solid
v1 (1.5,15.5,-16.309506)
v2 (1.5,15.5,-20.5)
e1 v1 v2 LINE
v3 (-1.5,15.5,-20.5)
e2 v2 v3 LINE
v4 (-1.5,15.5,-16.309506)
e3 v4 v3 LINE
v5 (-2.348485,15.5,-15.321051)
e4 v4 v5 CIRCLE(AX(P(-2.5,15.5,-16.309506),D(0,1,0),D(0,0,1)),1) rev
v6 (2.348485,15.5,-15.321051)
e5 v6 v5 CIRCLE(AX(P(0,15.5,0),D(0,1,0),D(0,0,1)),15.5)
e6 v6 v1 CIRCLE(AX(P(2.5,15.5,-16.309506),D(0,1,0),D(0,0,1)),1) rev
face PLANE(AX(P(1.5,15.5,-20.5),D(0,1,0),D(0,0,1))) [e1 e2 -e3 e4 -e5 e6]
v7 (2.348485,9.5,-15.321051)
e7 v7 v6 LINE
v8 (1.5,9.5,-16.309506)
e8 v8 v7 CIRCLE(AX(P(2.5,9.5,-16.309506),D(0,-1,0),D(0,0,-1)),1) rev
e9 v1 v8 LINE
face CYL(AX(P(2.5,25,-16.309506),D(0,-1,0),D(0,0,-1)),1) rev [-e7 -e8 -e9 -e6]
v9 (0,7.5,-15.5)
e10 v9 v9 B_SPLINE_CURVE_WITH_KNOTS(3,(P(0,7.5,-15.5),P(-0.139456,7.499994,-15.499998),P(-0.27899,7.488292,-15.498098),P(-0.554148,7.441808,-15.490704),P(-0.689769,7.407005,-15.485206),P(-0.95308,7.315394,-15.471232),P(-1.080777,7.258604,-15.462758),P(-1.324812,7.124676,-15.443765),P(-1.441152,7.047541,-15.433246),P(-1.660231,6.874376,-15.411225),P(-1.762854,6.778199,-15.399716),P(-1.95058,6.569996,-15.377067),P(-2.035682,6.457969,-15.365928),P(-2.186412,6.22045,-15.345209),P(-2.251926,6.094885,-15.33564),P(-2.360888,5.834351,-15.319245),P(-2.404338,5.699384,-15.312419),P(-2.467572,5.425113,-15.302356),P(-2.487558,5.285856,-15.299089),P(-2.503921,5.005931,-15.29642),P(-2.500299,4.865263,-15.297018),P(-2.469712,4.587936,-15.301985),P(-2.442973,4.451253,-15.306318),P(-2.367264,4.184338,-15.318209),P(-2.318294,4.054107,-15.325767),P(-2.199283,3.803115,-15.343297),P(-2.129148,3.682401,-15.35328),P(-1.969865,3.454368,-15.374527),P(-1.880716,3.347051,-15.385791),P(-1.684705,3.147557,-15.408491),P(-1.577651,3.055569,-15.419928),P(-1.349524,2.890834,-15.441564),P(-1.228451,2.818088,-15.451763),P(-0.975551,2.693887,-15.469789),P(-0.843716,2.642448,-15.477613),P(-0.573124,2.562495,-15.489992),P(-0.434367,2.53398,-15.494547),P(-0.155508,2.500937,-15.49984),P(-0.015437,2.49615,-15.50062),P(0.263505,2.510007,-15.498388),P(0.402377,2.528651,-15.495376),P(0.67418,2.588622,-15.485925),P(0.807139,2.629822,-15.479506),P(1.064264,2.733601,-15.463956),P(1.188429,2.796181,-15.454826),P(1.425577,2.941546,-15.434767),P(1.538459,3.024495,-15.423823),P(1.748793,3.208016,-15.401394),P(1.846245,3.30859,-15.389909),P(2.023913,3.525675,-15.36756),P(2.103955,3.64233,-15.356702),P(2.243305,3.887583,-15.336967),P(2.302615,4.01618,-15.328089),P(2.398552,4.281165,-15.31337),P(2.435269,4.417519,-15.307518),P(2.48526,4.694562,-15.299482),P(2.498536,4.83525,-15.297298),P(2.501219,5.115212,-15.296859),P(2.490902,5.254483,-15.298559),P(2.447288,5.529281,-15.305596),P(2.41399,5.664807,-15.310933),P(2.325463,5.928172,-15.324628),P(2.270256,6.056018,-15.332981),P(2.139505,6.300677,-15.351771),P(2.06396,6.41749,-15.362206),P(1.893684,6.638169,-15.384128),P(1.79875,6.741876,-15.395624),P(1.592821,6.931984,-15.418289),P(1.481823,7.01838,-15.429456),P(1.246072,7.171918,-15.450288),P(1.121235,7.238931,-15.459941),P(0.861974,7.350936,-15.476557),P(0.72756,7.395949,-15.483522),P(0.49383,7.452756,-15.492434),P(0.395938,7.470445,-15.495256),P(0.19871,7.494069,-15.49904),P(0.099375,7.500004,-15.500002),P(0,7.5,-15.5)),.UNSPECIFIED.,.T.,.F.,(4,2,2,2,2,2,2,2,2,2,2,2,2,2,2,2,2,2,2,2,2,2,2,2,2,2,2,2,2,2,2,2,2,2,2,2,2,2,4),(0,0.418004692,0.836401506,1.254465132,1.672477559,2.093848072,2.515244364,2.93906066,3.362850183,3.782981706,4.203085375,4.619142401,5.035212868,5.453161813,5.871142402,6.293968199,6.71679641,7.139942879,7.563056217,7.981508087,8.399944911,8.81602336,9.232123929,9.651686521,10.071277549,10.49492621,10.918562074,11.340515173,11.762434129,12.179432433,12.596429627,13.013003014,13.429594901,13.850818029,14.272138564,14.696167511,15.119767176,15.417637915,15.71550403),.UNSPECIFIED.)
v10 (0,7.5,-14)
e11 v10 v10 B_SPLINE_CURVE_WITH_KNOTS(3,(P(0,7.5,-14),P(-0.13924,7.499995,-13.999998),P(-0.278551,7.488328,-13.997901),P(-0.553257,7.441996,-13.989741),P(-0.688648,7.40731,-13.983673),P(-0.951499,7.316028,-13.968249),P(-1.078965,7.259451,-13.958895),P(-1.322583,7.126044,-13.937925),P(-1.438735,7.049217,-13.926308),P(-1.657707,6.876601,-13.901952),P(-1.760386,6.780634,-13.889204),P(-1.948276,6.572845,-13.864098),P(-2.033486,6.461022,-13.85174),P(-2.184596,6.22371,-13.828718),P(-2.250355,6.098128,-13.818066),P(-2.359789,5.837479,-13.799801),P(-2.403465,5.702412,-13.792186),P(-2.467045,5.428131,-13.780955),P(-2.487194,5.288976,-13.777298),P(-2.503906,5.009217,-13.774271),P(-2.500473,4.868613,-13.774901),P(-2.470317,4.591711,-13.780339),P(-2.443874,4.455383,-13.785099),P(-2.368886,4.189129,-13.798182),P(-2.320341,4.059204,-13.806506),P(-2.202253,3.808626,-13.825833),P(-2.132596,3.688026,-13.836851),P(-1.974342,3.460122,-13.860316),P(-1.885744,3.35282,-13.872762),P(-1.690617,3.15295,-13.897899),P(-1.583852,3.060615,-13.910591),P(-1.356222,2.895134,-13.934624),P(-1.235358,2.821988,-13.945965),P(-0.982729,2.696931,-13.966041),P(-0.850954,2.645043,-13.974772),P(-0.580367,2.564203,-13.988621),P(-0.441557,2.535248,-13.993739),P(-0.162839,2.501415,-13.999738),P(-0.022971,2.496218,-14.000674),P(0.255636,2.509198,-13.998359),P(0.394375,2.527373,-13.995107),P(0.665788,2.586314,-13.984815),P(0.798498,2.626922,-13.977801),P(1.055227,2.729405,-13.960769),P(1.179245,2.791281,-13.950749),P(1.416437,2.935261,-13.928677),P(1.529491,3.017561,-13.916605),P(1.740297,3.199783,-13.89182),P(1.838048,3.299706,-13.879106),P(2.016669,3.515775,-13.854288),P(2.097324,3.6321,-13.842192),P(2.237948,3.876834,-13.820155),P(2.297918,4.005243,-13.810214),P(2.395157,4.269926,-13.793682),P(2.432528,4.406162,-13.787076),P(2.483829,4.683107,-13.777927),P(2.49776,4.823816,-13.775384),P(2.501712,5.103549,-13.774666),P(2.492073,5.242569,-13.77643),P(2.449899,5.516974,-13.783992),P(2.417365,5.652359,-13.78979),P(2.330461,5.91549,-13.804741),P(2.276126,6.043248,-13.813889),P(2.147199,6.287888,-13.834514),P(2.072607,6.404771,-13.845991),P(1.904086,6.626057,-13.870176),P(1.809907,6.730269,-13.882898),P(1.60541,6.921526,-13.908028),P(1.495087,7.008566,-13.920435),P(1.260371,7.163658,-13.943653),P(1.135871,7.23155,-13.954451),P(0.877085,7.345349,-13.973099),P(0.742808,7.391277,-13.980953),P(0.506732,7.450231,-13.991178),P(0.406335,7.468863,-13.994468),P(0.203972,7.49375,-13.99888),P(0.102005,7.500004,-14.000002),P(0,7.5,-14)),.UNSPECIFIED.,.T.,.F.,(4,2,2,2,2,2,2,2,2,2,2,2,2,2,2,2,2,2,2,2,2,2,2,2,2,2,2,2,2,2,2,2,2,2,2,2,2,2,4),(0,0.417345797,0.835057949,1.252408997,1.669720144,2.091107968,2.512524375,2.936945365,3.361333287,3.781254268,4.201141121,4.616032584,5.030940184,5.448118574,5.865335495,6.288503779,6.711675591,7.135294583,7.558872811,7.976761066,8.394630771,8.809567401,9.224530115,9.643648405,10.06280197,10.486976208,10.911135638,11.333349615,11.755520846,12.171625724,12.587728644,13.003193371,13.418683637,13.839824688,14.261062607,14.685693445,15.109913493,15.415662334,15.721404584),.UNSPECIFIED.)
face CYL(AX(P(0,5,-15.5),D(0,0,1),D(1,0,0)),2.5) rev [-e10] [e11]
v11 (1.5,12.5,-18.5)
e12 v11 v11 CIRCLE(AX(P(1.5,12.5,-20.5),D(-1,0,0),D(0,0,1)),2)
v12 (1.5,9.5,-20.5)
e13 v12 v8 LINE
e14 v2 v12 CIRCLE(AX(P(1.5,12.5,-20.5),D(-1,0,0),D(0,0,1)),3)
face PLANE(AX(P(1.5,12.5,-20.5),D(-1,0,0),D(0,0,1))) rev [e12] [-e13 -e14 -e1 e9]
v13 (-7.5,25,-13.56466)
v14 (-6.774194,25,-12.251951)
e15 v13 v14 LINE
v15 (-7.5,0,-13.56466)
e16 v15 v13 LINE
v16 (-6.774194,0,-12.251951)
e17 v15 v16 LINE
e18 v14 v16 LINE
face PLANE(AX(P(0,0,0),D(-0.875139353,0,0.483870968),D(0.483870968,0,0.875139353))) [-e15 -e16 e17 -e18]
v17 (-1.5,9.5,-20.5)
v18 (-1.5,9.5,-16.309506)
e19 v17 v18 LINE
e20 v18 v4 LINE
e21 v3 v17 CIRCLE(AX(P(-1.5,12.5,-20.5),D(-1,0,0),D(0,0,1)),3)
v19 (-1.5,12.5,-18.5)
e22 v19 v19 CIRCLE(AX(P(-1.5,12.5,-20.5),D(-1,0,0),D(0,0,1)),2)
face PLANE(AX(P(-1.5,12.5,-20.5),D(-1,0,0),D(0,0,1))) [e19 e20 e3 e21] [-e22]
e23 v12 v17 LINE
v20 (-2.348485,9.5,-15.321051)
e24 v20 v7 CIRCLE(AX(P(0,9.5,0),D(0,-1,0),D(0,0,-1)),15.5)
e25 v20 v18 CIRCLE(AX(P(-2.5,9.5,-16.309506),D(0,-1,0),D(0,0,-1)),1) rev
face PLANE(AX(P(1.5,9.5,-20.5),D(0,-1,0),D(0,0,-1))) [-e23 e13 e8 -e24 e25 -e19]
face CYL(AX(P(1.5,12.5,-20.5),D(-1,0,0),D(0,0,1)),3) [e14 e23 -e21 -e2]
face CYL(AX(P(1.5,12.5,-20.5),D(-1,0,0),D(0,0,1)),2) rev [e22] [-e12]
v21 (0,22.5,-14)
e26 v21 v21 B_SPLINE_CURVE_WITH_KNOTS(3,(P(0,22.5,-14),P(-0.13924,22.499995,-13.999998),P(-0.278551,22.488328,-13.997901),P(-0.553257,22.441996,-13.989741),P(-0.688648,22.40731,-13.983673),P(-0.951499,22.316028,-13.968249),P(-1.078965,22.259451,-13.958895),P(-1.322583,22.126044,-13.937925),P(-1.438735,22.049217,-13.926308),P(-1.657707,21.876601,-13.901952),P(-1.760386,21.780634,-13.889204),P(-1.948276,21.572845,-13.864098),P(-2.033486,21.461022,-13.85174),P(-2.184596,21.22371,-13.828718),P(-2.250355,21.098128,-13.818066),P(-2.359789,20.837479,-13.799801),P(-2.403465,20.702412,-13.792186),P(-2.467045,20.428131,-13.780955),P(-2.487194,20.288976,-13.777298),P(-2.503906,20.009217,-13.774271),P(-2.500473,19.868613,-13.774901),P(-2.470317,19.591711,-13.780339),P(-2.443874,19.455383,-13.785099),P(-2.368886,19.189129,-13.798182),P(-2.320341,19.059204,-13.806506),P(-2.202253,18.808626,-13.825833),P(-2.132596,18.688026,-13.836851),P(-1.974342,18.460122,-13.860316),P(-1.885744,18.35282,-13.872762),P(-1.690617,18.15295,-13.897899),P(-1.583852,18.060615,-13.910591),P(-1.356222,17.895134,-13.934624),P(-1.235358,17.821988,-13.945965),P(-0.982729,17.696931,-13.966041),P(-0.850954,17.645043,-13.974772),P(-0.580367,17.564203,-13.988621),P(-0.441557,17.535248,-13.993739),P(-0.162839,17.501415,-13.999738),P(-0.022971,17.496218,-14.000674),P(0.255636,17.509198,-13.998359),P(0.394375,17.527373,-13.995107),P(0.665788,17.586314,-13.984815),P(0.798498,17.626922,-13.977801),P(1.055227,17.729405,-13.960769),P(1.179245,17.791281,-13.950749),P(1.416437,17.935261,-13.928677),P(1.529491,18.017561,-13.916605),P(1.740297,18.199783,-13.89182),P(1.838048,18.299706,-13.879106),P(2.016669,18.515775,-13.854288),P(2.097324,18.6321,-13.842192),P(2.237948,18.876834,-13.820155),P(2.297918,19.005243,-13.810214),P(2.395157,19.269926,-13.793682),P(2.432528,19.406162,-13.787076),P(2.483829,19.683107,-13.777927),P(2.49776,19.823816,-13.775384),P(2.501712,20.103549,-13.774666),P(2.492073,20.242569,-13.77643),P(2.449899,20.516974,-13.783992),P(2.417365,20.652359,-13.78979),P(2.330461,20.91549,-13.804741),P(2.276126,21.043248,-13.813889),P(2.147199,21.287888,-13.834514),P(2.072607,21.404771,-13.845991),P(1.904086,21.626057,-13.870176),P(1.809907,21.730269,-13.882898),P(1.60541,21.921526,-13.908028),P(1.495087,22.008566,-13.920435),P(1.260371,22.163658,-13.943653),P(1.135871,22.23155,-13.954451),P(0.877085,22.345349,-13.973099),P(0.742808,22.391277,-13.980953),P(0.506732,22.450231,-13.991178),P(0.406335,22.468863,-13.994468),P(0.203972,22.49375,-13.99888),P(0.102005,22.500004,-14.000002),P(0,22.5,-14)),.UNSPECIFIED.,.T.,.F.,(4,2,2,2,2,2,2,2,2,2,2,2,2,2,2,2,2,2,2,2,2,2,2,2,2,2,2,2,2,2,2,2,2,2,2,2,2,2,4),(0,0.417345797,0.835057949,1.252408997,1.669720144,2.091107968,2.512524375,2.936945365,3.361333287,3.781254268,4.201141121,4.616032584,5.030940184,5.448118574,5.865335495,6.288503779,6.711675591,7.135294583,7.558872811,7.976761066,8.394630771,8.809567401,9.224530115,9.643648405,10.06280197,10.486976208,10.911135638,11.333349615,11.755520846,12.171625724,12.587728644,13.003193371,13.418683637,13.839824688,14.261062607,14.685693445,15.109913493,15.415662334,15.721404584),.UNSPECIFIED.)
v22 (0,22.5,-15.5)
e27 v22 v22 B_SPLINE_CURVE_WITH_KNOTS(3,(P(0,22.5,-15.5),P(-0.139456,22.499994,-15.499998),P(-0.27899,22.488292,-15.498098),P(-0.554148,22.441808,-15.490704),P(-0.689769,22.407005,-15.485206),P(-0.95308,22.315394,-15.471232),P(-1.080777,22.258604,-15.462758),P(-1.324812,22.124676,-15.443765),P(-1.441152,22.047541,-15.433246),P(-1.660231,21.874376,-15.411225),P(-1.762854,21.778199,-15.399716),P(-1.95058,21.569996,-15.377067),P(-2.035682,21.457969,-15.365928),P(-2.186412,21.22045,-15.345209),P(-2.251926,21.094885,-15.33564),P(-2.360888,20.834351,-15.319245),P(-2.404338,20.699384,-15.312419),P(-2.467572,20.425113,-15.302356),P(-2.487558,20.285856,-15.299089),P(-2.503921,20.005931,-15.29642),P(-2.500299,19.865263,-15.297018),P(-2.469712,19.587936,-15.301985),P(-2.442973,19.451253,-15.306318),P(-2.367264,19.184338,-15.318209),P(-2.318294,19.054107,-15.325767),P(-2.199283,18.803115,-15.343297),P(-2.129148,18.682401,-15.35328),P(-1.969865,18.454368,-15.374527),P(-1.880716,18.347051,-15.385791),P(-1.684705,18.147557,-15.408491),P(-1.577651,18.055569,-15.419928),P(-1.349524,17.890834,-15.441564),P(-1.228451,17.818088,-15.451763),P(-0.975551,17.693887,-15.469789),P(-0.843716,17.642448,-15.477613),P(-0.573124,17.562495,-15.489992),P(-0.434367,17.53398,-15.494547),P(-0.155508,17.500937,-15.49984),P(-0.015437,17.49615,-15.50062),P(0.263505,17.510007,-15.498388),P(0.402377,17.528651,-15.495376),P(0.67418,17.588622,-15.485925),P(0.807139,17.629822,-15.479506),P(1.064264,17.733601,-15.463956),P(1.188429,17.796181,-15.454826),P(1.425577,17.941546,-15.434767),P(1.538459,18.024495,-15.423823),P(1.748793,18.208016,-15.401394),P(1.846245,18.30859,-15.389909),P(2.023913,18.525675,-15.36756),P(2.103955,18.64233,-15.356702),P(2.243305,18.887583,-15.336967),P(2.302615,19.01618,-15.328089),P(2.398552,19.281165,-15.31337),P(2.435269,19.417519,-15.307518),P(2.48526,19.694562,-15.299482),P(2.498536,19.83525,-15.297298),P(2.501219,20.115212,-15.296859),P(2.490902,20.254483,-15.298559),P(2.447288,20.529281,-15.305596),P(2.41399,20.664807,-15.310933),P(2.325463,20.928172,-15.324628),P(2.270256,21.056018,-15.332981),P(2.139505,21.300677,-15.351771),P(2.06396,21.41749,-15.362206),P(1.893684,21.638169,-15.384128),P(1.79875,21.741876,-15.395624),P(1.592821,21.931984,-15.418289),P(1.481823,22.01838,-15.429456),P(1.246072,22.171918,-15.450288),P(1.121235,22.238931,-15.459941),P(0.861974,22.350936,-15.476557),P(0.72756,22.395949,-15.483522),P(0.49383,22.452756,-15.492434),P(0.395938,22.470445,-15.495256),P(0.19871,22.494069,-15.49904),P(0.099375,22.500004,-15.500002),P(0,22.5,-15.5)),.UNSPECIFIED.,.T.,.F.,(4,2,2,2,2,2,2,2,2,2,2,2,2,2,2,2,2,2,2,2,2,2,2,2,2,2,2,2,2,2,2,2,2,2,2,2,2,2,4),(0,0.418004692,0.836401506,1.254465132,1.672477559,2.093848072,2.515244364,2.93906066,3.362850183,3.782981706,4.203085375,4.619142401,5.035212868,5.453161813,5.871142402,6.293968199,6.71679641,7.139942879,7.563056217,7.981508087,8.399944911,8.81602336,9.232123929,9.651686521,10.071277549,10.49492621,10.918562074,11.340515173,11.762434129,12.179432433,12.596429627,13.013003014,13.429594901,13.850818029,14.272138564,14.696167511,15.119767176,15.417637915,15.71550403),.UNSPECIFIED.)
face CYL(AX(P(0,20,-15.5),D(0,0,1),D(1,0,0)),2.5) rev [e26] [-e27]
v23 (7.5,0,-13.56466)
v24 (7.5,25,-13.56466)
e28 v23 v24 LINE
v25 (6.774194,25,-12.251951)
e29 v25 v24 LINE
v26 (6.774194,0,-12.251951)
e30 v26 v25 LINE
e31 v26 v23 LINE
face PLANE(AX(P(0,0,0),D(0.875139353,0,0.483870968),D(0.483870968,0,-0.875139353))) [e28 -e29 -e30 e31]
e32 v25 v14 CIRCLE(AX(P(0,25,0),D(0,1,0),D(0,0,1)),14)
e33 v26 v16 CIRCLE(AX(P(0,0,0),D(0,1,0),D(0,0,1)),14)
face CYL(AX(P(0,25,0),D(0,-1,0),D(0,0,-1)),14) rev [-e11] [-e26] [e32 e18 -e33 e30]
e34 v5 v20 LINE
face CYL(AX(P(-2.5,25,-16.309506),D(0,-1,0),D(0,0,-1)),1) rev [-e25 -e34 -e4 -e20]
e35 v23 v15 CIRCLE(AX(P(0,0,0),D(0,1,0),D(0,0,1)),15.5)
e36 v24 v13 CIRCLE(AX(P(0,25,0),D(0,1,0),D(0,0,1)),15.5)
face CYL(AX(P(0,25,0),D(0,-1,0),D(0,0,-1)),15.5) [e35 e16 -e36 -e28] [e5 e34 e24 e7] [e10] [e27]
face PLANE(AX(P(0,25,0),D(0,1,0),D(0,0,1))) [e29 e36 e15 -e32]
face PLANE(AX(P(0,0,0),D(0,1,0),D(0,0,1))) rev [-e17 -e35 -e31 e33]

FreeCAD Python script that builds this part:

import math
import FreeCAD as App
import Part
import Sketcher
from FreeCAD import Vector
Q = App.Units.Quantity


def edges_at(feature, points):
    """Names of the edges that pass closest to the given points."""
    edges = feature.Shape.Edges
    near = lambda p: min(range(len(edges)), key=lambda i: edges[i].distToShape(Part.Vertex(*p))[0])
    return sorted({f"Edge{near(p) + 1}" for p in points})


def add_polygon(sketch, points):
    """Adds a closed chain of lines whose ends are joined by coincident constraints."""
    first, n = sketch.GeometryCount, len(points)
    for a, b in zip(points, points[1:] + points[:1]):
        sketch.addGeometry(Part.LineSegment(App.Vector(*a, 0), App.Vector(*b, 0)), False)
    for i in range(n):
        sketch.addConstraint(Sketcher.Constraint("Coincident", first + i, 2, first + (i + 1) % n, 1))

doc = App.newDocument("Part")
body = doc.addObject("PartDesign::Body", "Body")

# Sketch on XZ plane
sketch1 = body.newObject("Sketcher::SketchObject", "Sketch")
sketch1.AttachmentSupport = (doc.getObject("XZ_Plane"), [""])
sketch1.MapMode = "FlatFace"
sketch1.addGeometry([
    Part.Circle(Vector(0, 0, 0), Vector(0, 0, 1), 16),
    Part.Circle(Vector(0, 0, 0), Vector(0, 0, 1), 14),
], False)
sketch1.addConstraint([
    Sketcher.Constraint("Coincident", 0, 3, -1, 1),
    Sketcher.Constraint("Coincident", 1, 3, -1, 1),
    Sketcher.Constraint("Diameter", 0, Q("31 mm")),
    Sketcher.Constraint("Diameter", 1, Q("28 mm")),
])
pad1 = body.newObject("PartDesign::Pad", "Pad")
pad1.Profile = sketch1
pad1.Length = 25
pad1.Reversed = True

# Sketch on XZ plane
sketch2 = body.newObject("Sketcher::SketchObject", "Sketch001")
sketch2.AttachmentSupport = (doc.getObject("XZ_Plane"), [""])
sketch2.MapMode = "FlatFace"
sketch2.AttachmentOffset = App.Placement(Vector(0, 0, -25), App.Rotation())
add_polygon(sketch2, [(-22, -22), (-22, 22), (22, 22), (22, -22)])  # lines 0-3
sketch2.addGeometry(Part.LineSegment(Vector(8, -14, 0), Vector(0, 0, 0)), False)  # 4
sketch2.addGeometry(Part.LineSegment(Vector(0, 0, 0), Vector(-8, -14, 0)), False)  # 5
sketch2.addGeometry(Part.ArcOfCircle(Part.Circle(Vector(0, 0, 0), Vector(0, 0, 1), 15), math.radians(-119), math.radians(-61)), False)  # 6
sketch2.addConstraint([
    Sketcher.Constraint("Coincident", 4, 2, 5, 1),
    Sketcher.Constraint("Coincident", 5, 2, 6, 1),
    Sketcher.Constraint("Coincident", 6, 2, 4, 1),
    Sketcher.Constraint("Vertical", 0),
    Sketcher.Constraint("Horizontal", 1),
    Sketcher.Constraint("Vertical", 2),
    Sketcher.Constraint("Horizontal", 3),
    Sketcher.Constraint("Coincident", 6, 3, -1, 1),
    Sketcher.Constraint("Coincident", 4, 2, -1, 1),
    Sketcher.Constraint("Symmetric", 0, 2, 2, 2, -1, 1),
    Sketcher.Constraint("Horizontal", 5, 2, 6, 2),
    Sketcher.Constraint("Equal", 3, 0),
    Sketcher.Constraint("Radius", 6, Q("15.5 mm")),
    Sketcher.Constraint("DistanceX", 5, 2, 6, 2, Q("15 mm")),
    Sketcher.Constraint("DistanceX", 1, 1, 1, 2, Q("43.094 mm")),
])
pocket1 = body.newObject("PartDesign::Pocket", "Pocket")
pocket1.Profile = sketch2
pocket1.Type = "ThroughAll"
pocket1.Reversed = True

# Sketch on XY plane
sketch3 = body.newObject("Sketcher::SketchObject", "Sketch002")
sketch3.AttachmentSupport = (doc.getObject("XY_Plane"), [""])
sketch3.MapMode = "FlatFace"
sketch3.addGeometry([
    Part.Circle(Vector(0, 20, 0), Vector(0, 0, 1), 2.5),
    Part.Circle(Vector(0, 5, 0), Vector(0, 0, 1), 2.5),
], False)
sketch3.addConstraint([
    Sketcher.Constraint("Equal", 0, 1),
    Sketcher.Constraint("PointOnObject", 0, 3, -2),
    Sketcher.Constraint("PointOnObject", 1, 3, -2),
    Sketcher.Constraint("Diameter", 0, Q("5 mm")),
    Sketcher.Constraint("DistanceY", -1, 1, 0, 3, Q("20 mm")),
    Sketcher.Constraint("DistanceY", -1, 1, 1, 3, Q("5 mm")),
])
pocket2 = body.newObject("PartDesign::Pocket", "Pocket001")
pocket2.Profile = sketch3
pocket2.Type = "ThroughAll"

# Sketch on YZ plane
sketch4 = body.newObject("Sketcher::SketchObject", "Sketch003")
sketch4.AttachmentSupport = (doc.getObject("YZ_Plane"), [""])
sketch4.MapMode = "FlatFace"
sketch4.addGeometry([
    Part.LineSegment(Vector(9.5, -20.5, 0), Vector(9.5, -15.2, 0)),  # 0
    Part.LineSegment(Vector(9.5, -15.2, 0), Vector(15.5, -15.2, 0)),  # 1
    Part.LineSegment(Vector(15.5, -15.2, 0), Vector(15.5, -20.5, 0)),  # 2
    Part.ArcOfCircle(Part.Circle(Vector(12.5, -20.5, 0), Vector(0, 0, 1), 3), math.radians(180), math.radians(360)),  # 3
    Part.Circle(Vector(12.5, -20.5, 0), Vector(0, 0, 1), 2),  # 4
], False)
sketch4.addConstraint([
    Sketcher.Constraint("Coincident", 0, 2, 1, 1),
    Sketcher.Constraint("Coincident", 1, 2, 2, 1),
    Sketcher.Constraint("Tangent", 2, 2, 3, 2),
    Sketcher.Constraint("Tangent", 3, 1, 0, 1),
    Sketcher.Constraint("Vertical", 0),
    Sketcher.Constraint("Horizontal", 1),
    Sketcher.Constraint("Vertical", 2),
    Sketcher.Constraint("Coincident", 4, 3, 3, 3),
    Sketcher.Constraint("Diameter", 4, Q("4 mm")),
    Sketcher.Constraint("Radius", 3, Q("3 mm")),
    Sketcher.Constraint("DistanceY", 0, 1, 0, 2, Q("5.25 mm")),
    Sketcher.Constraint("DistanceX", -1, 1, 3, 3, Q("12.5 mm")),
    Sketcher.Constraint("DistanceY", 3, 3, -1, 1, Q("20.5 mm")),
])
pad2 = body.newObject("PartDesign::Pad", "Pad001")
pad2.Profile = sketch4
pad2.Type = "TwoLengths"
pad2.Length = 1.5
pad2.Length2 = 1.5
pad2.Reversed = True
doc.recompute()

fillet = body.newObject("PartDesign::Fillet", "Fillet")
fillet.Base = (pad2, edges_at(pad2, [(-1.5, 12.5, -15.427), (1.5, 12.5, -15.427)]))
fillet.Radius = 1

doc.recompute()
